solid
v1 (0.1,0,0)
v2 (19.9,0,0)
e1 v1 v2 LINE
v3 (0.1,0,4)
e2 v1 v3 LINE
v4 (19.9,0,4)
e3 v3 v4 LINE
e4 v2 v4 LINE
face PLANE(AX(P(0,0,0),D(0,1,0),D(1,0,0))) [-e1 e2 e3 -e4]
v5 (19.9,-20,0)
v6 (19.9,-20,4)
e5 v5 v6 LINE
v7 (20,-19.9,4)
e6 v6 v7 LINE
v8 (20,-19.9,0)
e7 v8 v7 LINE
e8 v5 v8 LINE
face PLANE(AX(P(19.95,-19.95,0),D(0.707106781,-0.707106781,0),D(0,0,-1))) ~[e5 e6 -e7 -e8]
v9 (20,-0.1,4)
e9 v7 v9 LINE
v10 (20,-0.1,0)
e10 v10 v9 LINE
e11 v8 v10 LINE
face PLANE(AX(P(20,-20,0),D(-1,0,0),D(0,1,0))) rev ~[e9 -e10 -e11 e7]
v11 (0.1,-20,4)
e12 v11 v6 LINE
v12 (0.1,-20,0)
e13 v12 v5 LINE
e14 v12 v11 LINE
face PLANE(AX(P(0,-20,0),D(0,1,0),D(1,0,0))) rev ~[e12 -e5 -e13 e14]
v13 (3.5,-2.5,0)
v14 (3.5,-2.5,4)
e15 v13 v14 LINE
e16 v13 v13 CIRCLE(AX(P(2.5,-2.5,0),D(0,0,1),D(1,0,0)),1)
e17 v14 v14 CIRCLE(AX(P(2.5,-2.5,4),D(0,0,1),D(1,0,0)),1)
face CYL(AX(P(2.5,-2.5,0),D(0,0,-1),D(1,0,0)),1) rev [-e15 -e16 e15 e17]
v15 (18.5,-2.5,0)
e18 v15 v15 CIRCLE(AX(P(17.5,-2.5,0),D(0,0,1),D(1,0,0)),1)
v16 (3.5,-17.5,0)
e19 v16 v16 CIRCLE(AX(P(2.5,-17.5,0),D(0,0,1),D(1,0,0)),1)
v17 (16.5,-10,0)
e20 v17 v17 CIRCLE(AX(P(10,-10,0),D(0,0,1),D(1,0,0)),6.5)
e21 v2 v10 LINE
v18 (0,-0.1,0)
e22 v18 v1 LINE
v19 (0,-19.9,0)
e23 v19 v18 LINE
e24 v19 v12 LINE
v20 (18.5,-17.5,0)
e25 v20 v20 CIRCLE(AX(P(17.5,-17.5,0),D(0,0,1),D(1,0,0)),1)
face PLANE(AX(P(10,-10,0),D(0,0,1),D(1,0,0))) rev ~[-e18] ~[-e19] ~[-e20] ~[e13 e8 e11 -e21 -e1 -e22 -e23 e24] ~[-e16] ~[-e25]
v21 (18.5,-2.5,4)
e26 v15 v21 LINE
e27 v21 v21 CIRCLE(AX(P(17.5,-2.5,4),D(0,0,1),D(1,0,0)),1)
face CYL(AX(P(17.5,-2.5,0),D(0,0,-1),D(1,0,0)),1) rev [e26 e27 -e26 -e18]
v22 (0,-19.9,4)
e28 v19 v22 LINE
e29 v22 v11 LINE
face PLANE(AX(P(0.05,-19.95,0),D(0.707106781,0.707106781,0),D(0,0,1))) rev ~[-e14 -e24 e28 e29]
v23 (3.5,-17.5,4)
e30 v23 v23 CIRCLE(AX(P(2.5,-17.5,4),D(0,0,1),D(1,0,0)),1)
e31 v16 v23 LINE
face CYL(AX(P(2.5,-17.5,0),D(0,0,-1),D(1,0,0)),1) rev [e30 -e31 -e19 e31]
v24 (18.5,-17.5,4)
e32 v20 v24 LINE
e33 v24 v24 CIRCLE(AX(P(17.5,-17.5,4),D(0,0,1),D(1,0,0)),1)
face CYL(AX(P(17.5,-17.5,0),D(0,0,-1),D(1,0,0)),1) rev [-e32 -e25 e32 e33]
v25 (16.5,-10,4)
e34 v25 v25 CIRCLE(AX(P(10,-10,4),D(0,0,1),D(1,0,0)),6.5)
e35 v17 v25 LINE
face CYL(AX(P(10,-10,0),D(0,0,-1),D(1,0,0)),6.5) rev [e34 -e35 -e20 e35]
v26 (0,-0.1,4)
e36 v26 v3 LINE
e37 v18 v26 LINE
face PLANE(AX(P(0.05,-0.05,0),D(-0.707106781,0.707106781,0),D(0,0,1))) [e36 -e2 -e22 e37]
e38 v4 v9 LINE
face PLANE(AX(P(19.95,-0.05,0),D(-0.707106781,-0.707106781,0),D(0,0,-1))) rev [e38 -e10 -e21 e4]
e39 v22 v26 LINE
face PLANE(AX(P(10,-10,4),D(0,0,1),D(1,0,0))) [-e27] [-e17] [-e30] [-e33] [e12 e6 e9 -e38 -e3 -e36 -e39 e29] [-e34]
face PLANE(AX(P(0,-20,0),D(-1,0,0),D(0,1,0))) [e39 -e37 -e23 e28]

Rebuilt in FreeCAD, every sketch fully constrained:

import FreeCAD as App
import Part
import Sketcher

V = App.Vector


def edges_at(feature, points):
    """Names of the edges that pass closest to the given points."""
    edges = feature.Shape.Edges
    near = lambda p: min(range(len(edges)), key=lambda i: edges[i].distToShape(Part.Vertex(*p))[0])
    return sorted({f"Edge{near(p) + 1}" for p in points})


def add_polygon(sketch, points):
    """Adds a closed chain of lines whose ends are joined by coincident constraints."""
    first, n = sketch.GeometryCount, len(points)
    for a, b in zip(points, points[1:] + points[:1]):
        sketch.addGeometry(Part.LineSegment(App.Vector(*a, 0), App.Vector(*b, 0)), False)
    for i in range(n):
        sketch.addConstraint(Sketcher.Constraint("Coincident", first + i, 2, first + (i + 1) % n, 1))

doc = App.newDocument("Part")
body = doc.addObject("PartDesign::Body", "Body")

# Sketch on XY plane
sketch1 = body.newObject("Sketcher::SketchObject", "Sketch")
sketch1.AttachmentSupport = (doc.getObject("XY_Plane"), [""])
sketch1.MapMode = "FlatFace"
add_polygon(sketch1, [(0, 0), (0, -20), (20, -20), (20, 0)])  # lines 0-3
sketch1.addGeometry(Part.Circle(V(2.5, -17.5, 0), V(0, 0, 1), 1), False)  # 4
sketch1.addGeometry(Part.Circle(V(17.5, -17.5, 0), V(0, 0, 1), 1), False)  # 5
sketch1.addGeometry(Part.Circle(V(2.5, -2.5, 0), V(0, 0, 1), 1), False)  # 6
sketch1.addGeometry(Part.Circle(V(10, -10, 0), V(0, 0, 1), 6.5), False)  # 7
sketch1.addGeometry(Part.Circle(V(17.5, -2.5, 0), V(0, 0, 1), 1), False)  # 8
sketch1.addConstraint(Sketcher.Constraint("Vertical", 0))
sketch1.addConstraint(Sketcher.Constraint("Horizontal", 1))
sketch1.addConstraint(Sketcher.Constraint("Vertical", 2))
sketch1.addConstraint(Sketcher.Constraint("Horizontal", 3))
sketch1.addConstraint(Sketcher.Constraint("Coincident", 3, 2, -1, 1))
sketch1.addConstraint(Sketcher.Constraint("Equal", 4, 5))
sketch1.addConstraint(Sketcher.Constraint("Equal", 5, 6))
sketch1.addConstraint(Sketcher.Constraint("Equal", 6, 8))
sketch1.addConstraint(Sketcher.Constraint("Horizontal", 4, 3, 5, 3))
sketch1.addConstraint(Sketcher.Constraint("Horizontal", 6, 3, 8, 3))
sketch1.addConstraint(Sketcher.Constraint("Vertical", 4, 3, 6, 3))
sketch1.addConstraint(Sketcher.Constraint("Vertical", 5, 3, 8, 3))
sketch1.addConstraint(Sketcher.Constraint("Equal", 3, 0))
sketch1.addConstraint(Sketcher.Constraint("Diameter", 4, 2.0))
sketch1.addConstraint(Sketcher.Constraint("Diameter", 7, 13.0))
sketch1.addConstraint(Sketcher.Constraint("DistanceX", 1, 1, 1, 2, 20.0))
sketch1.addConstraint(Sketcher.Constraint("DistanceX", -1, 1, 7, 3, 10.0))
sketch1.addConstraint(Sketcher.Constraint("DistanceY", 7, 3, -1, 1, 10.0))
sketch1.addConstraint(Sketcher.Constraint("DistanceX", 4, 3, 5, 3, 15.0))
sketch1.addConstraint(Sketcher.Constraint("DistanceY", 4, 3, 6, 3, 15.0))
sketch1.addConstraint(Sketcher.Constraint("DistanceX", -1, 1, 4, 3, 2.5))
sketch1.addConstraint(Sketcher.Constraint("DistanceY", 4, 3, -1, 1, 17.5))
pad1 = body.newObject("PartDesign::Pad", "Pad")
pad1.Profile = sketch1
pad1.Length = 4
doc.recompute()

chamfer = body.newObject("PartDesign::Chamfer", "Chamfer")
chamfer.Base = (pad1, edges_at(pad1, [
    (0, -20, 2),
    (0, 0, 2),
    (20, 0, 2),
    (20, -20, 2),
]))
chamfer.Size = 0.1

doc.recompute()
